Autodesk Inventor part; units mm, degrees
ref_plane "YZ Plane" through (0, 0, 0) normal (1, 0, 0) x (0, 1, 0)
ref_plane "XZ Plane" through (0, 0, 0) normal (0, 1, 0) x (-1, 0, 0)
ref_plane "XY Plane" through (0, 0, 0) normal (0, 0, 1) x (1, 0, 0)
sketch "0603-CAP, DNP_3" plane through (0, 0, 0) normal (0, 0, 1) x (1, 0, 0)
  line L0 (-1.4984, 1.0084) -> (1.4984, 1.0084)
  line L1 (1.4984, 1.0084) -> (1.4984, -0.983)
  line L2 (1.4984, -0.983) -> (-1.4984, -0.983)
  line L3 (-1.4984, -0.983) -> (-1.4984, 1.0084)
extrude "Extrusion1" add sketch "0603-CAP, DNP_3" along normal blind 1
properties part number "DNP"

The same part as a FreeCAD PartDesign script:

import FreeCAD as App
import Part
import Sketcher

V = App.Vector
Q = App.Units.Quantity

doc = App.newDocument("Part")
body = doc.addObject("PartDesign::Body", "Body")

# Sketch on XY plane
sketch1 = body.newObject("Sketcher::SketchObject", "Sketch")
sketch1.AttachmentSupport = (doc.getObject("XY_Plane"), [""])
sketch1.MapMode = "FlatFace"
sketch1.addGeometry([
    Part.LineSegment(V(1.4984, 1.0084, 0), V(-1.4984, 1.0084, 0)),
    Part.LineSegment(V(-1.4984, 1.0084, 0), V(-1.4984, -0.983, 0)),
    Part.LineSegment(V(-1.4984, -0.983, 0), V(1.4984, -0.983, 0)),
    Part.LineSegment(V(1.4984, -0.983, 0), V(1.4984, 1.0084, 0)),
], False)
sketch1.addConstraint([
    Sketcher.Constraint("Coincident", 0, 2, 1, 1),
    Sketcher.Constraint("Coincident", 1, 2, 2, 1),
    Sketcher.Constraint("Coincident", 2, 2, 3, 1),
    Sketcher.Constraint("Coincident", 3, 2, 0, 1),
    Sketcher.Constraint("Horizontal", 0),
    Sketcher.Constraint("Vertical", 1),
    Sketcher.Constraint("Horizontal", 2),
    Sketcher.Constraint("Vertical", 3),
    Sketcher.Constraint("DistanceX", 0, 2, 0, 1, Q("2.9968 mm")),
    Sketcher.Constraint("DistanceY", 1, 2, 1, 1, Q("1.9914 mm")),
    Sketcher.Constraint("DistanceY", 1, 2, -1, 1, Q("0.983 mm")),
    Sketcher.Constraint("DistanceX", 0, 2, -1, 1, Q("1.4984 mm")),
])
pad1 = body.newObject("PartDesign::Pad", "Pad")
pad1.Profile = sketch1
pad1.Length = 1

doc.recompute()
